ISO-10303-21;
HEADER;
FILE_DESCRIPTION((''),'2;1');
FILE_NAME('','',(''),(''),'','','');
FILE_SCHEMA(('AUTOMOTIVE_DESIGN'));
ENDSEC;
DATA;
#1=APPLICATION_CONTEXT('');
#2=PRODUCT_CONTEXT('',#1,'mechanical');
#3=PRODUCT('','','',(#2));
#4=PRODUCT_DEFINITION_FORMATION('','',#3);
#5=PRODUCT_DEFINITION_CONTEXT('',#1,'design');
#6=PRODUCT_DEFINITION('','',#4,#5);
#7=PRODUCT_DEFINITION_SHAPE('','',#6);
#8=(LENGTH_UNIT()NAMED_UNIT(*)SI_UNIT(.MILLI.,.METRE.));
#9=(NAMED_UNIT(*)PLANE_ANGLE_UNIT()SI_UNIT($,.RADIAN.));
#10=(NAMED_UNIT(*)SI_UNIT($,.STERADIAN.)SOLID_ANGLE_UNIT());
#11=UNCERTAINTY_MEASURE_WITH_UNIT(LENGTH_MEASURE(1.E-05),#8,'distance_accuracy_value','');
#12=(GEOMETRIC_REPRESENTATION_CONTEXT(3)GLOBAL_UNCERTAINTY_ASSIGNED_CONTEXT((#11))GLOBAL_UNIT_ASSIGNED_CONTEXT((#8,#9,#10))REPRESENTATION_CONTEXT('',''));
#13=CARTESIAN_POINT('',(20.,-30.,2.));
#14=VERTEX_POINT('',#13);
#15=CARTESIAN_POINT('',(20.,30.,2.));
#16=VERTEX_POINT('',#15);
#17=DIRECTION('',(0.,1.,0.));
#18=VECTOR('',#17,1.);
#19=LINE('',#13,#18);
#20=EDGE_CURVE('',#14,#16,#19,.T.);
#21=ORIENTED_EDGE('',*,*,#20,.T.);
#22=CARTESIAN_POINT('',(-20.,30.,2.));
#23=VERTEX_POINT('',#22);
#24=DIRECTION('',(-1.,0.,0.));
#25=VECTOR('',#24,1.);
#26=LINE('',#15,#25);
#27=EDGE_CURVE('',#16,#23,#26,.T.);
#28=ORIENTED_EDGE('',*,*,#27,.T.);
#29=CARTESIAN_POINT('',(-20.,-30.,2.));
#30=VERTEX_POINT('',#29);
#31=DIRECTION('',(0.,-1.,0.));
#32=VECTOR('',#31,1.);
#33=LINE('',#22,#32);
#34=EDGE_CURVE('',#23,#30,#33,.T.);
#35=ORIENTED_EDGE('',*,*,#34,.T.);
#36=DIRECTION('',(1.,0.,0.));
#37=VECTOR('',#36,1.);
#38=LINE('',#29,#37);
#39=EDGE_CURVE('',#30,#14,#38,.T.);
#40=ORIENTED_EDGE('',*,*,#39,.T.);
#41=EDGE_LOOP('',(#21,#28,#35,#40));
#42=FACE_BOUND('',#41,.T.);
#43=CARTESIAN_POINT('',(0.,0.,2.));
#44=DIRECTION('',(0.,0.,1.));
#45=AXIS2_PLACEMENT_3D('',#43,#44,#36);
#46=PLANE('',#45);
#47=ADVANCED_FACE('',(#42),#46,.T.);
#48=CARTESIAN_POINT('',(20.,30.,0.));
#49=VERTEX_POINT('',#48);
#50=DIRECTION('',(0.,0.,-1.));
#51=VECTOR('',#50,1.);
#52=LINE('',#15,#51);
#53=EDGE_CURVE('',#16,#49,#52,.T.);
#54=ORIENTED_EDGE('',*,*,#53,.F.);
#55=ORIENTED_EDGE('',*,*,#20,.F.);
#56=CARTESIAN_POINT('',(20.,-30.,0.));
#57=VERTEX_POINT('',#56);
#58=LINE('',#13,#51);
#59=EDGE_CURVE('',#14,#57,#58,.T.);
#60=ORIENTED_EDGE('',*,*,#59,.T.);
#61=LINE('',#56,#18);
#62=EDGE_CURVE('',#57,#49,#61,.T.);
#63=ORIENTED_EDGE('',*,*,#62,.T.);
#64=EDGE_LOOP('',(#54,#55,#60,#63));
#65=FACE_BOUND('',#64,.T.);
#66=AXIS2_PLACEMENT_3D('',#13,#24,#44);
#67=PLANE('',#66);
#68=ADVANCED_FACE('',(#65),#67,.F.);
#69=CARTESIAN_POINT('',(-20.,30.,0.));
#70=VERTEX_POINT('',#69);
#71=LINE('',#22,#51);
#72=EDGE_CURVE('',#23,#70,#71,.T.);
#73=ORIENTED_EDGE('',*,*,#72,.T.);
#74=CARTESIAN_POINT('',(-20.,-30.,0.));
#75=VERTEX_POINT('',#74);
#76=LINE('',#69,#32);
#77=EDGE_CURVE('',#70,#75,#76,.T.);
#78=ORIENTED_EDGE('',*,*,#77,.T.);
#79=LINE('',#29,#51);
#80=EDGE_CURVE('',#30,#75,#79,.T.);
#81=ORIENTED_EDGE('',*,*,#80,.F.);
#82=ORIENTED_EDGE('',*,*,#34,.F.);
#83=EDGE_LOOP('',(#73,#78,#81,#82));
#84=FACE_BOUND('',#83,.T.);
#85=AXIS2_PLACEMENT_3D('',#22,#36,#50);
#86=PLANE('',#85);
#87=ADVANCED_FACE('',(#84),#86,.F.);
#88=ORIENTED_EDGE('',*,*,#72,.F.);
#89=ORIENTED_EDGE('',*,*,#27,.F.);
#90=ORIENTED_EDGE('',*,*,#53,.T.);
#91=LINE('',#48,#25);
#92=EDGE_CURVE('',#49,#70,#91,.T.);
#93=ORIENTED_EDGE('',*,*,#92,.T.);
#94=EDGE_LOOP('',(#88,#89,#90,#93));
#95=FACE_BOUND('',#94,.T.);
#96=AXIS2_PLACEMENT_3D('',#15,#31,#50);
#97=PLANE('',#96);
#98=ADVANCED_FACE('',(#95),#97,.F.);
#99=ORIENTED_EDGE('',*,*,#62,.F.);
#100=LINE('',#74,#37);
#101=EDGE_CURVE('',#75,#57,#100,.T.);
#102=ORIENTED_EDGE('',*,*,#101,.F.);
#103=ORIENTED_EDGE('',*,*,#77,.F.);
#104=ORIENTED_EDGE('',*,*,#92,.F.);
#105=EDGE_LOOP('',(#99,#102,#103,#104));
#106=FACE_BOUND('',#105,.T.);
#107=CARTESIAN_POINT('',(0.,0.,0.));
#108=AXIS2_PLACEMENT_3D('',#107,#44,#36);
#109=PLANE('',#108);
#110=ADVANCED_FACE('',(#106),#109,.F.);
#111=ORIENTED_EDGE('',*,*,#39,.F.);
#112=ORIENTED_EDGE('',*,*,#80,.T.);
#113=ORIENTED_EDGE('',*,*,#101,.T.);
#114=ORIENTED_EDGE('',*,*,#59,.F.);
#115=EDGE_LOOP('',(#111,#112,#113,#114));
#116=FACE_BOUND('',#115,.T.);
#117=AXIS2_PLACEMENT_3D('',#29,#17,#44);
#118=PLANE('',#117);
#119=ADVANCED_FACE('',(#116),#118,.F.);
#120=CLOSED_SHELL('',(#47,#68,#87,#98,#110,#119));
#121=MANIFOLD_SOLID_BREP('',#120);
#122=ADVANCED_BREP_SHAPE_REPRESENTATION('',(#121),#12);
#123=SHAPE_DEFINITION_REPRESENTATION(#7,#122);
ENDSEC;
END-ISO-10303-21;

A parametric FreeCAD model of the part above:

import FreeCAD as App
import Part
import Sketcher

doc = App.newDocument("Part")
body = doc.addObject("PartDesign::Body", "Body")

# Sketch on XY plane
sketch1 = doc.addObject("Sketcher::SketchObject", "Sketch")
body.addObject(sketch1)
sketch1.AttachmentSupport = (doc.XY_Plane, [""])
sketch1.MapMode = "FlatFace"
sketch1.addGeometry(Part.LineSegment(App.Vector(-20, 30, 0), App.Vector(-20, -30, 0)), False)
sketch1.addGeometry(Part.LineSegment(App.Vector(-20, -30, 0), App.Vector(20, -30, 0)), False)
sketch1.addGeometry(Part.LineSegment(App.Vector(20, -30, 0), App.Vector(20, 30, 0)), False)
sketch1.addGeometry(Part.LineSegment(App.Vector(20, 30, 0), App.Vector(-20, 30, 0)), False)
sketch1.addConstraint(Sketcher.Constraint("Coincident", 0, 2, 1, 1))
sketch1.addConstraint(Sketcher.Constraint("Coincident", 1, 2, 2, 1))
sketch1.addConstraint(Sketcher.Constraint("Coincident", 2, 2, 3, 1))
sketch1.addConstraint(Sketcher.Constraint("Coincident", 3, 2, 0, 1))
sketch1.addConstraint(Sketcher.Constraint("Vertical", 0))
sketch1.addConstraint(Sketcher.Constraint("Horizontal", 1))
sketch1.addConstraint(Sketcher.Constraint("Vertical", 2))
sketch1.addConstraint(Sketcher.Constraint("Horizontal", 3))
sketch1.addConstraint(Sketcher.Constraint("Symmetric", 0, 2, 2, 2, -1, 1))
sketch1.addConstraint(Sketcher.Constraint("DistanceX", 1, 1, 1, 2, 40.0))
sketch1.addConstraint(Sketcher.Constraint("DistanceY", 0, 2, 0, 1, 60.0))
pad1 = doc.addObject("PartDesign::Pad", "Pad")
body.addObject(pad1)
pad1.Profile = sketch1
pad1.Length = 2

doc.recompute()
